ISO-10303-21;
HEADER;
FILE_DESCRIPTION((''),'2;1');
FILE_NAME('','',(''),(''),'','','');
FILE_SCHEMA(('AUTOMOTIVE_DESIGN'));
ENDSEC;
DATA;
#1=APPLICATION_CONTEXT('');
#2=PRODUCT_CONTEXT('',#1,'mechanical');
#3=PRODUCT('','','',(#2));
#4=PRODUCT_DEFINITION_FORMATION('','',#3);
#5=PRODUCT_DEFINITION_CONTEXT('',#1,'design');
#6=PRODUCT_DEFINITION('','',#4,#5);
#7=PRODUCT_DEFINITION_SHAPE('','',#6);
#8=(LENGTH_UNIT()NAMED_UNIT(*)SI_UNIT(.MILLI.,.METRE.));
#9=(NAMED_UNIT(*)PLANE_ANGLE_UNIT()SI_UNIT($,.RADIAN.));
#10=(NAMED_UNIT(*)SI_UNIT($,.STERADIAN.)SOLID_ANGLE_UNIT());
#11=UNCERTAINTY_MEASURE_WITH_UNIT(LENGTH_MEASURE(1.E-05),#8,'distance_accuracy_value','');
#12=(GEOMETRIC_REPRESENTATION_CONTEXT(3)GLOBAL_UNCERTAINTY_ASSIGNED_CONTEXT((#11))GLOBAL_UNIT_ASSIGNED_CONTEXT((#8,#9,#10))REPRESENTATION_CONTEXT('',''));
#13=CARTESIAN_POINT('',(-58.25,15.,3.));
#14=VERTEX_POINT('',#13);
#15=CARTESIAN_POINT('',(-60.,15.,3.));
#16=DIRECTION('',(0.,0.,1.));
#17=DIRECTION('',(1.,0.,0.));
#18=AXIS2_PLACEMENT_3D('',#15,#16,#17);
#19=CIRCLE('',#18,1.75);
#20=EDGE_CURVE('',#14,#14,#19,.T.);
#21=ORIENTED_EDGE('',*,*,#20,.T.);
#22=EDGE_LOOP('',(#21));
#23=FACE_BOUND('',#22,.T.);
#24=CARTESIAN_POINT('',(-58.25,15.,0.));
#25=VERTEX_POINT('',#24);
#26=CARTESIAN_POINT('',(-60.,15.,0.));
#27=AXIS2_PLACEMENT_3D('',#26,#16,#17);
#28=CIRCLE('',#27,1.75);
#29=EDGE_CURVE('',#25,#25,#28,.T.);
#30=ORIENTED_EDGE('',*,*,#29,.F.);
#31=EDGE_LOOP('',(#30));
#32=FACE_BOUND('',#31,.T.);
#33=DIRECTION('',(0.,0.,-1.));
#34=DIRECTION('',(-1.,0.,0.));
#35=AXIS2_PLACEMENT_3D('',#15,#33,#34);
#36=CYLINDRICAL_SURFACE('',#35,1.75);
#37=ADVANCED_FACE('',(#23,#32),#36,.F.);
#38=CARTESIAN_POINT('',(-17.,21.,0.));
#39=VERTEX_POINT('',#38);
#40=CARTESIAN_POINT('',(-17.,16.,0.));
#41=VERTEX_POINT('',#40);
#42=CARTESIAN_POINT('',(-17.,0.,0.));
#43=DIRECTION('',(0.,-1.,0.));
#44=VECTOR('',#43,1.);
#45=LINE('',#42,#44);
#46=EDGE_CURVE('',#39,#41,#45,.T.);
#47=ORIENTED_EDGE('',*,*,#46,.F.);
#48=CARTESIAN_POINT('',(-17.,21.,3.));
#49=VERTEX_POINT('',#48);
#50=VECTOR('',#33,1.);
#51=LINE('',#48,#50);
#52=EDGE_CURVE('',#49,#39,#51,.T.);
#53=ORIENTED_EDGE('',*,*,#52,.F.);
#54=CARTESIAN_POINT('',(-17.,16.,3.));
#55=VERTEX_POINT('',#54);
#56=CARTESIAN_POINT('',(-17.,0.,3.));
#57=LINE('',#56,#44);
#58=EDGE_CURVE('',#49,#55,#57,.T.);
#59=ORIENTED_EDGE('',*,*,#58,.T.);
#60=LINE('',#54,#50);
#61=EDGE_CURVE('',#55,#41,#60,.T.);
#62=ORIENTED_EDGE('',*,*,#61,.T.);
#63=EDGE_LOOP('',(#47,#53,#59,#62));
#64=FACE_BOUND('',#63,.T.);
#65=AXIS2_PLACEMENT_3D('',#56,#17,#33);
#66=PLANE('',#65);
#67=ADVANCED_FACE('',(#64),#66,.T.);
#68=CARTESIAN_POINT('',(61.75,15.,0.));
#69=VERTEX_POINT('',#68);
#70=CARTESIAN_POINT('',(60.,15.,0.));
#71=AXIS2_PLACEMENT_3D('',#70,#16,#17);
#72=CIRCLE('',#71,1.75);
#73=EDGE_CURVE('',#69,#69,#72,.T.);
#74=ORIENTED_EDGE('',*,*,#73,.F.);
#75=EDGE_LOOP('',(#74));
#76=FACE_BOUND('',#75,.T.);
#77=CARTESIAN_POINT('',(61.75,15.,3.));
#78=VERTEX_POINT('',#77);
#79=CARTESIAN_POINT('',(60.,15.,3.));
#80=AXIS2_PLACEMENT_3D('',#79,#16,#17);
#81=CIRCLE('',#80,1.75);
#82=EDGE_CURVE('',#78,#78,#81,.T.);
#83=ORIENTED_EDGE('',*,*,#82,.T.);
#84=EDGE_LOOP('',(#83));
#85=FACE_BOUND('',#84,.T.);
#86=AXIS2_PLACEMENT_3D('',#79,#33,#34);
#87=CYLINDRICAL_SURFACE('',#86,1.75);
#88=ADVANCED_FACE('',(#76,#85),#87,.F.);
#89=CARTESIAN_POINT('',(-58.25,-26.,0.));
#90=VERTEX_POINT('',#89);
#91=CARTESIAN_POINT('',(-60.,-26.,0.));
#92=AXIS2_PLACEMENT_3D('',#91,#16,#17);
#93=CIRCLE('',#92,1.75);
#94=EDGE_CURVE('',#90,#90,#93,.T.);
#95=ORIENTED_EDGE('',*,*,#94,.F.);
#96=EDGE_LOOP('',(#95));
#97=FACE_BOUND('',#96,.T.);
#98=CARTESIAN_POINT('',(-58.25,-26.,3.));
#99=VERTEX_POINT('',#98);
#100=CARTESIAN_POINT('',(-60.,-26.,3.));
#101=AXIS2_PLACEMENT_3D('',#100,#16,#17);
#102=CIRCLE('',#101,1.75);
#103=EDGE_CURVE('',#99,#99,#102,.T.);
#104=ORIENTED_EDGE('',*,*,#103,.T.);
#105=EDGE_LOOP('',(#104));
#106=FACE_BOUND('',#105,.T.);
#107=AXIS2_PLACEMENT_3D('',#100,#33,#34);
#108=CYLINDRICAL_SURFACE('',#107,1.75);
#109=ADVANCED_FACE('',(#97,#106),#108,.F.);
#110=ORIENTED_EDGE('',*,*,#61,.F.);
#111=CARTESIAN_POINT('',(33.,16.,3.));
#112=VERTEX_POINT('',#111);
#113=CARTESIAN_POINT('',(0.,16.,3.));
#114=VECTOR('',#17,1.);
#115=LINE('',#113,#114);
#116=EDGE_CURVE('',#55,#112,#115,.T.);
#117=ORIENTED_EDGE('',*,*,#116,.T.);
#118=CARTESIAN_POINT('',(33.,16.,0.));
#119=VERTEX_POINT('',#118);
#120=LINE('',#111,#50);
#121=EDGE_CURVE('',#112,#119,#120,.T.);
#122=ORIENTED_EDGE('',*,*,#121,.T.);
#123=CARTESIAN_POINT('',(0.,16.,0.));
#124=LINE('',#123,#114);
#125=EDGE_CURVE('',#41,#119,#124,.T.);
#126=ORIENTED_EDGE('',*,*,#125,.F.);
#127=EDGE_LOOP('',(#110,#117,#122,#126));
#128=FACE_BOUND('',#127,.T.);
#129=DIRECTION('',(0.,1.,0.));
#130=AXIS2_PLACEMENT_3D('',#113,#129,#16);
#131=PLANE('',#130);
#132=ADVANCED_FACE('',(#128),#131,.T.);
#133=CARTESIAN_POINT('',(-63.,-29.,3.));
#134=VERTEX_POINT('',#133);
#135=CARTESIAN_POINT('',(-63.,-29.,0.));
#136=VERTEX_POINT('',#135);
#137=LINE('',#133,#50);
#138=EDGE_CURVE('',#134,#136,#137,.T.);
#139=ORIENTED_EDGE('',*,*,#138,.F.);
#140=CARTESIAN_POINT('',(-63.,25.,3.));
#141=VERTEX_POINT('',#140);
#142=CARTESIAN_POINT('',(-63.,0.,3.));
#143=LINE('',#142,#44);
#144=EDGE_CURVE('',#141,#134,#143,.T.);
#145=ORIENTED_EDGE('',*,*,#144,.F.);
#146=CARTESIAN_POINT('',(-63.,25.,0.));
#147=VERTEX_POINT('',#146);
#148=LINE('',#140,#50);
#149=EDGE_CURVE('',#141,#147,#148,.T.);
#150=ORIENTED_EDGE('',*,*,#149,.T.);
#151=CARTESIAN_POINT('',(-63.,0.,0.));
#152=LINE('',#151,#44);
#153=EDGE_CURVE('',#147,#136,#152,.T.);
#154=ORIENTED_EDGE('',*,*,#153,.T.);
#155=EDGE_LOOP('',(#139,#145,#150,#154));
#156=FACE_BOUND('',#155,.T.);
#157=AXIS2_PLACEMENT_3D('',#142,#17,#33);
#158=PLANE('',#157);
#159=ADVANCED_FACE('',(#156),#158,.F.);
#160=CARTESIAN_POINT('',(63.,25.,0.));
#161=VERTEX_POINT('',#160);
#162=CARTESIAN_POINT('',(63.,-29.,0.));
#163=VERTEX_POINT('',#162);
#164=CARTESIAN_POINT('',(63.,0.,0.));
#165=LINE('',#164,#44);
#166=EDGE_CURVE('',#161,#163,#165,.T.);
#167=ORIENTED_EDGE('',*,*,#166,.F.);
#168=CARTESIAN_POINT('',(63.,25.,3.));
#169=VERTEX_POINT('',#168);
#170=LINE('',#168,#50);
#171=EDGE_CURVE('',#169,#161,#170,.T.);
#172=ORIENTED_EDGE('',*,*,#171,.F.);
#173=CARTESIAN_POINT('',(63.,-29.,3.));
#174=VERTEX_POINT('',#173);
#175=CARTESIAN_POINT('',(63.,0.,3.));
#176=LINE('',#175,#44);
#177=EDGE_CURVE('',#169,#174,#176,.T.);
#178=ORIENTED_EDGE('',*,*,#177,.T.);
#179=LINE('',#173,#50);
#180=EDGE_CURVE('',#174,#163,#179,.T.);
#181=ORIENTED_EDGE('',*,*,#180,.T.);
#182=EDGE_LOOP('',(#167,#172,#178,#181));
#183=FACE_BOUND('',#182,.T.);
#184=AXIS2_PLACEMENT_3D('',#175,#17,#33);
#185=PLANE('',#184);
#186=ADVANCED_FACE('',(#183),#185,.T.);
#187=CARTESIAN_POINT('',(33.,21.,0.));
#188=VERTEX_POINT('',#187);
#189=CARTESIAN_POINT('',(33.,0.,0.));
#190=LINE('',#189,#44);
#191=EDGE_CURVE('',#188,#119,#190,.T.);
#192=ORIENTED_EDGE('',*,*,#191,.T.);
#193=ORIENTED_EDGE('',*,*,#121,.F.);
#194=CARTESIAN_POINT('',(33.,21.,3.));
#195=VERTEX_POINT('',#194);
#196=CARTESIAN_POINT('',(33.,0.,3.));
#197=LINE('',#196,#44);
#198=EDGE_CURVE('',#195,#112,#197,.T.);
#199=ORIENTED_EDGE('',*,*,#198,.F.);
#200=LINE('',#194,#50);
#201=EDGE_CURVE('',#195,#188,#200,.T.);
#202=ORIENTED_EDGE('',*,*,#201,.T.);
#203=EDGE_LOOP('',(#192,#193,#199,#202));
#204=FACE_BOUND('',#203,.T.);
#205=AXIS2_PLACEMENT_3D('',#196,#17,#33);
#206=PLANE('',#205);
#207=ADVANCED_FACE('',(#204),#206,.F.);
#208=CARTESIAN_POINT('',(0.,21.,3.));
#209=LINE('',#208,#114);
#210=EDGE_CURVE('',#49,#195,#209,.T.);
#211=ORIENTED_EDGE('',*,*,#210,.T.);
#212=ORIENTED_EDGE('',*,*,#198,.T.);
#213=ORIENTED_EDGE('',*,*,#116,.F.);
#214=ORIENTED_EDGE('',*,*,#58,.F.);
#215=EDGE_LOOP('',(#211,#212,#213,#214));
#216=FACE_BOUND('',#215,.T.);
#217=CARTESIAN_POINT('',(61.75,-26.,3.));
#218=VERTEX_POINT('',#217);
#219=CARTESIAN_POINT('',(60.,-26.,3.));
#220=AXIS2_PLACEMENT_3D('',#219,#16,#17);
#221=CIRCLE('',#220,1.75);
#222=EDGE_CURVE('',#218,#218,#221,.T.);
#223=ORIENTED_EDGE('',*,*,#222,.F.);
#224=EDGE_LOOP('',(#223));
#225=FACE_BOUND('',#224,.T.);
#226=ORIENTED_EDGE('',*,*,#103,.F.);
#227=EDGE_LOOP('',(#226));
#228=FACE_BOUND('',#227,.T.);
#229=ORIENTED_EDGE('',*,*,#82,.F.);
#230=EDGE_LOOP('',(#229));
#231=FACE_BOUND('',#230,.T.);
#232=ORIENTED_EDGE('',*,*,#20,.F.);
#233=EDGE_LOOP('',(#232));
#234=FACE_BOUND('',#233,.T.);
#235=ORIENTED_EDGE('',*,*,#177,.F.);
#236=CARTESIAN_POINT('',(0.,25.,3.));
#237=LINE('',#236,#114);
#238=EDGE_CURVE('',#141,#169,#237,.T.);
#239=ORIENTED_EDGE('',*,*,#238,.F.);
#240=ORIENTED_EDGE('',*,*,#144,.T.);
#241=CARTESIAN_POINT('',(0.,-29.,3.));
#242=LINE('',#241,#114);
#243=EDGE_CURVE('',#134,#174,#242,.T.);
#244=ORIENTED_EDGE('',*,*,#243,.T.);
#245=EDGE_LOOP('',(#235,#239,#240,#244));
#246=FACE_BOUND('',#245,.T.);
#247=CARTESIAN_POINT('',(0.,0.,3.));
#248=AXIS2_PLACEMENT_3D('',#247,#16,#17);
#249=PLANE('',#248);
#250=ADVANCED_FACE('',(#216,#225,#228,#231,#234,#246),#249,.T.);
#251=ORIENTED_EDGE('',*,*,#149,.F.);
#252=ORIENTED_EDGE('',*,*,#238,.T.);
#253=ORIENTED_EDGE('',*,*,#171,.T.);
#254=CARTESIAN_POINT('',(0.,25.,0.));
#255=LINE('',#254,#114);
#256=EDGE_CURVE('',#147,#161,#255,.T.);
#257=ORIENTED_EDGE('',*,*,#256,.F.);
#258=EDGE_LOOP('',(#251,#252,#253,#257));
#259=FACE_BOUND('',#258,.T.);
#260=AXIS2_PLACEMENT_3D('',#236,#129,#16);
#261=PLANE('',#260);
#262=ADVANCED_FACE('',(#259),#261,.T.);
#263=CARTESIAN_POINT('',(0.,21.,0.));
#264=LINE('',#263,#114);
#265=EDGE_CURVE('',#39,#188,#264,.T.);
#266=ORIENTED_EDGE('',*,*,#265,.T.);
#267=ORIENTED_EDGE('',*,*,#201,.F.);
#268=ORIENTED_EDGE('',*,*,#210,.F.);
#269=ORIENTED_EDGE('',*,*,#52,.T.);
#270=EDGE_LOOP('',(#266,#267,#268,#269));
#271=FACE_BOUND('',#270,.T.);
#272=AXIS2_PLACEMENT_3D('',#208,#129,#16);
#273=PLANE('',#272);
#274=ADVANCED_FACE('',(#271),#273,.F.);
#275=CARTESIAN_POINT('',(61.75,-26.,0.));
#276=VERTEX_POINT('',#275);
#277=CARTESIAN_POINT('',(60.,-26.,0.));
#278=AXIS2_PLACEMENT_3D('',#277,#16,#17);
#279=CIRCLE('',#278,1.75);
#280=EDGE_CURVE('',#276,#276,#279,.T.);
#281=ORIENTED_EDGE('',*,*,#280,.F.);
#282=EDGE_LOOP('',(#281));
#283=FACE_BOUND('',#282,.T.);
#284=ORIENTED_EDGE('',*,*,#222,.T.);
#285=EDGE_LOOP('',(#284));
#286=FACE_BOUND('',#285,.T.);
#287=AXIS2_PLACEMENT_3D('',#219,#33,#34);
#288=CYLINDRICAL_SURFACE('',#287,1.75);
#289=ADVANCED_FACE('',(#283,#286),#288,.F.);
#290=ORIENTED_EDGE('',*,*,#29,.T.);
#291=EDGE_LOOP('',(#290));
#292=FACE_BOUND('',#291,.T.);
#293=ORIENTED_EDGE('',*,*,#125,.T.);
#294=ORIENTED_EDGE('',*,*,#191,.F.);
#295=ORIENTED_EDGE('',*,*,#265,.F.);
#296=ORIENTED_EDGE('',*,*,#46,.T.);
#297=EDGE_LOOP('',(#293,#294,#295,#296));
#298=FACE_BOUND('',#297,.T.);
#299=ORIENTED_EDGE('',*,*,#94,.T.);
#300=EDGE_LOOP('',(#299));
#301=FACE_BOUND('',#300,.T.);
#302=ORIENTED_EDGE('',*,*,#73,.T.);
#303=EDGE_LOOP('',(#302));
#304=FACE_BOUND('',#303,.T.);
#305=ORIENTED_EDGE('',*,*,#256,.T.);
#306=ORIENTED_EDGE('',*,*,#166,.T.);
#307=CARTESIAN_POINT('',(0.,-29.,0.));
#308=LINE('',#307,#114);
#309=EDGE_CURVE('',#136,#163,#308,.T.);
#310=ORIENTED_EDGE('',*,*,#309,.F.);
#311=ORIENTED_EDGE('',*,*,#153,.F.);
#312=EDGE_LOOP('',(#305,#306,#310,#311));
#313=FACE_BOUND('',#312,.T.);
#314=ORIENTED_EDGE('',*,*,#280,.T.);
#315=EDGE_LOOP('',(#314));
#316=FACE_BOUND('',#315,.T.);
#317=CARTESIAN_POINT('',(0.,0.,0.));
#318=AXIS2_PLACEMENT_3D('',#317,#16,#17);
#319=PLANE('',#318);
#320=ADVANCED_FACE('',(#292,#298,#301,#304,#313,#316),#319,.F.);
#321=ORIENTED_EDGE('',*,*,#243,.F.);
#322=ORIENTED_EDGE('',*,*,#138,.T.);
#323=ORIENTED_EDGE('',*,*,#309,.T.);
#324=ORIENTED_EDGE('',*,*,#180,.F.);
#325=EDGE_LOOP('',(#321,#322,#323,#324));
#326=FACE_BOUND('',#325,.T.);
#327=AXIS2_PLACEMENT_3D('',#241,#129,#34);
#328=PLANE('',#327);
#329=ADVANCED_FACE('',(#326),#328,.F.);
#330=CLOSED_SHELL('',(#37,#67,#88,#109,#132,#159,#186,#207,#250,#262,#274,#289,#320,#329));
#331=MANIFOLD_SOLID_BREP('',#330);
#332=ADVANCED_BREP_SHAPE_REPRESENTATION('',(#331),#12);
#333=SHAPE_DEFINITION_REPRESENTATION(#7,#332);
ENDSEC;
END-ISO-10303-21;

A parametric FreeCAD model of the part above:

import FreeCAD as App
import Part
import Sketcher

V = App.Vector
Q = App.Units.Quantity


def add_polygon(sketch, points):
    """Adds a closed chain of lines whose ends are joined by coincident constraints."""
    first, n = sketch.GeometryCount, len(points)
    for a, b in zip(points, points[1:] + points[:1]):
        sketch.addGeometry(Part.LineSegment(App.Vector(*a, 0), App.Vector(*b, 0)), False)
    for i in range(n):
        sketch.addConstraint(Sketcher.Constraint("Coincident", first + i, 2, first + (i + 1) % n, 1))

doc = App.newDocument("Part")
params = doc.addObject("Spreadsheet::Sheet", "Params")
for row, (alias, value) in enumerate([
    ("sketch1_diameter", "3.5 mm"),
    ("sketch1_width", "126 mm"),
    ("sketch1_width2", "50 mm"),
    ("sketch1_height", "54 mm"),
    ("sketch1_height2", "5 mm"),
    ("pad1_length", "3 mm"),
], start=1):
    params.set(f"A{row}", alias)
    params.set(f"B{row}", "=" + value)
    params.setAlias(f"B{row}", alias)

body = doc.addObject("PartDesign::Body", "Body")

# Sketch on XY plane
sketch1 = body.newObject("Sketcher::SketchObject", "Sketch")
sketch1.AttachmentSupport = (doc.getObject("XY_Plane"), [""])
sketch1.MapMode = "FlatFace"
add_polygon(sketch1, [(-63, 25), (-63, -29), (63, -29), (63, 25)])  # lines 0-3
sketch1.addGeometry(Part.Circle(V(-60, -26, 0), V(0, 0, 1), 1.8), False)  # 4
sketch1.addGeometry(Part.Circle(V(60, -26, 0), V(0, 0, 1), 1.8), False)  # 5
sketch1.addGeometry(Part.Circle(V(-60, 15, 0), V(0, 0, 1), 1.8), False)  # 6
add_polygon(sketch1, [(33, 16), (-17, 16), (-17, 21), (33, 21)])  # lines 7-10
sketch1.addGeometry(Part.Circle(V(60, 15, 0), V(0, 0, 1), 1.8), False)  # 11
sketch1.addConstraint([
    Sketcher.Constraint("Vertical", 0),
    Sketcher.Constraint("Horizontal", 1),
    Sketcher.Constraint("Vertical", 2),
    Sketcher.Constraint("Horizontal", 3),
    Sketcher.Constraint("Horizontal", 7),
    Sketcher.Constraint("Vertical", 8),
    Sketcher.Constraint("Horizontal", 9),
    Sketcher.Constraint("Vertical", 10),
    Sketcher.Constraint("Equal", 4, 5),
    Sketcher.Constraint("Equal", 5, 6),
    Sketcher.Constraint("Equal", 6, 11),
    Sketcher.Constraint("Symmetric", 4, 3, 5, 3, -2),
    Sketcher.Constraint("Symmetric", 6, 3, 11, 3, -2),
    Sketcher.Constraint("Vertical", 4, 3, 6, 3),
    Sketcher.Constraint("Diameter", 4, Q("3.5 mm")),
    Sketcher.Constraint("DistanceX", 1, 1, 1, 2, Q("126 mm")),
    Sketcher.Constraint("DistanceX", 7, 2, 7, 1, Q("50 mm")),
    Sketcher.Constraint("DistanceY", 0, 2, 0, 1, Q("54 mm")),
    Sketcher.Constraint("DistanceY", 8, 1, 8, 2, Q("5 mm")),
    Sketcher.Constraint("DistanceX", 4, 3, -1, 1, Q("60 mm")),
    Sketcher.Constraint("DistanceY", 4, 3, -1, 1, Q("26 mm")),
    Sketcher.Constraint("DistanceY", -1, 1, 6, 3, Q("15 mm")),
    Sketcher.Constraint("DistanceX", 0, 2, -1, 1, Q("63 mm")),
    Sketcher.Constraint("DistanceY", 0, 2, -1, 1, Q("29 mm")),
    Sketcher.Constraint("DistanceX", 7, 2, -1, 1, Q("17 mm")),
    Sketcher.Constraint("DistanceY", -1, 1, 7, 2, Q("16 mm")),
])
sketch1.setExpression("Constraints[22]", "Params.sketch1_diameter")
sketch1.setExpression("Constraints[23]", "Params.sketch1_width")
sketch1.setExpression("Constraints[24]", "Params.sketch1_width2")
sketch1.setExpression("Constraints[25]", "Params.sketch1_height")
sketch1.setExpression("Constraints[26]", "Params.sketch1_height2")
pad1 = body.newObject("PartDesign::Pad", "Pad")
pad1.Profile = sketch1
pad1.setExpression("Length", "Params.pad1_length")

doc.recompute()
